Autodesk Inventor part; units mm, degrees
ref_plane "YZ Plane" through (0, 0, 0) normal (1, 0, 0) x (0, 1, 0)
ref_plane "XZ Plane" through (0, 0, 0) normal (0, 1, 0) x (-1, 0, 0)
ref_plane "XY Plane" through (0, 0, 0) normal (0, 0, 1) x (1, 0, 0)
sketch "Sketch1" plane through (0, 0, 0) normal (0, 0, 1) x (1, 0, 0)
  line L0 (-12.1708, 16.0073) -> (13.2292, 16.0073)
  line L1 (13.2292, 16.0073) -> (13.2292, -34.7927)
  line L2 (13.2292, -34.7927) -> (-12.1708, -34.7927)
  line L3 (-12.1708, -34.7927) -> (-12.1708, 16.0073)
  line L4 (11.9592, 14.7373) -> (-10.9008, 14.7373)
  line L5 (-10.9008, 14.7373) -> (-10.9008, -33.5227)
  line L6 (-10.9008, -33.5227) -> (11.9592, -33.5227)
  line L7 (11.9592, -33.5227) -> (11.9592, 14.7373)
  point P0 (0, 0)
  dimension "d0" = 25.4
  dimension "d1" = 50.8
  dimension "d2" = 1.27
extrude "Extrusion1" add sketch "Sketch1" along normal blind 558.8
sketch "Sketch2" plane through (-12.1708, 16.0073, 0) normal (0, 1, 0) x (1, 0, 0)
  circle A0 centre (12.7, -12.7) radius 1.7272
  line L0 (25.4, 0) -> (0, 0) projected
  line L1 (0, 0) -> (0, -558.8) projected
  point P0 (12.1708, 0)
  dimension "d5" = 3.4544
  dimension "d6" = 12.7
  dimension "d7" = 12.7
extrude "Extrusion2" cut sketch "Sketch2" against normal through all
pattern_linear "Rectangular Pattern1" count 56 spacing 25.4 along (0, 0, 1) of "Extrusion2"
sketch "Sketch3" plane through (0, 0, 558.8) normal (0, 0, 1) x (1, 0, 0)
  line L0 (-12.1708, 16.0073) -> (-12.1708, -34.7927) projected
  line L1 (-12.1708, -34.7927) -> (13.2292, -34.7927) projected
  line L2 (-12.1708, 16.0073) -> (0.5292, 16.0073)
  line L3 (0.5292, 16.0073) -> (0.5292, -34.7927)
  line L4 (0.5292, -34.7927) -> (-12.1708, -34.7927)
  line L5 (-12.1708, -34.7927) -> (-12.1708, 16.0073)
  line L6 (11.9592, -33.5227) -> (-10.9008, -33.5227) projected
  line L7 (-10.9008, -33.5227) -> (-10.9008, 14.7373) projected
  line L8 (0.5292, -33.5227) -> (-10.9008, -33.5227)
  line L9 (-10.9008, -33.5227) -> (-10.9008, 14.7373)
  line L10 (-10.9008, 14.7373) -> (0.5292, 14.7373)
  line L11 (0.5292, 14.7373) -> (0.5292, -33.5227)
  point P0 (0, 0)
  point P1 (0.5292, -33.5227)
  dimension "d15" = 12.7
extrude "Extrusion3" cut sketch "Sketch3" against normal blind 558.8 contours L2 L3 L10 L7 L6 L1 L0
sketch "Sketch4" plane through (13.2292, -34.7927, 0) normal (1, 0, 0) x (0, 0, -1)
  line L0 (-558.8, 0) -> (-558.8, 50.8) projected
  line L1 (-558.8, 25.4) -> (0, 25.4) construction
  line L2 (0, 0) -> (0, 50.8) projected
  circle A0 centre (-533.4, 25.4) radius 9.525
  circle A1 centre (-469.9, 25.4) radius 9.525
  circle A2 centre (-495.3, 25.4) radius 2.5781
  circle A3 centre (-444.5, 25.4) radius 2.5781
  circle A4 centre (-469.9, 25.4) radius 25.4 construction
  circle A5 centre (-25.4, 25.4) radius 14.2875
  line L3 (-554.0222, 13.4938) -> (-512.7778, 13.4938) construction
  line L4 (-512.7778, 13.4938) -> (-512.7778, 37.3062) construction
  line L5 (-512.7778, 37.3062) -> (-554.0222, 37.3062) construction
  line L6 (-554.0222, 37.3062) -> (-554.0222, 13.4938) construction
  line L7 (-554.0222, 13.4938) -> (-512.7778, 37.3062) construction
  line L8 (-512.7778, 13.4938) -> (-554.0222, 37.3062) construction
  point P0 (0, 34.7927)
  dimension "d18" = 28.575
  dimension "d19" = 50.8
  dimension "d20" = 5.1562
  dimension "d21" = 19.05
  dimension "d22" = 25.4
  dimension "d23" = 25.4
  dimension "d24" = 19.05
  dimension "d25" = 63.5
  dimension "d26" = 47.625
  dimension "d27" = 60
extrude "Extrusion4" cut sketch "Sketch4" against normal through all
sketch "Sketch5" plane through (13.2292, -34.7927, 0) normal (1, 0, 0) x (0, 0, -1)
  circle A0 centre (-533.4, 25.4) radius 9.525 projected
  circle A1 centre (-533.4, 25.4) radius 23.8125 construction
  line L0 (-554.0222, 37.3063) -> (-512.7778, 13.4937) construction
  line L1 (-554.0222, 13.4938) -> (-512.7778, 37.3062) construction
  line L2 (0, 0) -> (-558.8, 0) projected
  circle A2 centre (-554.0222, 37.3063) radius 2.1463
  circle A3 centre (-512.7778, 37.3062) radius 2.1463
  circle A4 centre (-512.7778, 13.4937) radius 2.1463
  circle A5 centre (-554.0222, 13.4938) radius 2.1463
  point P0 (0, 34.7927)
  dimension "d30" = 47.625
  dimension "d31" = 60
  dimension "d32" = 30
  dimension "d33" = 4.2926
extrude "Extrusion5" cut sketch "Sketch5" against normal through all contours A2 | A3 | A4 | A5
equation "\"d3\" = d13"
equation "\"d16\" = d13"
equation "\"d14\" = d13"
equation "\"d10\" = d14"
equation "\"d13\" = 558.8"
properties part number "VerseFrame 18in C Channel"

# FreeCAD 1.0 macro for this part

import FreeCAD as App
import Part
import Sketcher

V = App.Vector
Q = App.Units.Quantity

doc = App.newDocument("Part")
body = doc.addObject("PartDesign::Body", "Body")

# Sketch on XY plane
sketch1 = body.newObject("Sketcher::SketchObject", "Sketch")
sketch1.AttachmentSupport = (doc.getObject("XY_Plane"), [""])
sketch1.MapMode = "FlatFace"
sketch1.addGeometry([
    Part.LineSegment(V(13, 16, 0), V(-12, 16, 0)),  # 0
    Part.LineSegment(V(-12, 16, 0), V(-12, -35, 0)),  # 1
    Part.LineSegment(V(-12, -35, 0), V(13, -35, 0)),  # 2
    Part.LineSegment(V(13, -35, 0), V(13, 16, 0)),  # 3
    Part.LineSegment(V(-11, 15, 0), V(12, 15, 0)),  # 4
    Part.LineSegment(V(12, 15, 0), V(12, -34, 0)),  # 5
    Part.LineSegment(V(12, -34, 0), V(-11, -34, 0)),  # 6
    Part.LineSegment(V(-11, -34, 0), V(-11, 15, 0)),  # 7
], False)
sketch1.addConstraint([
    Sketcher.Constraint("Coincident", 0, 2, 1, 1),
    Sketcher.Constraint("Coincident", 1, 2, 2, 1),
    Sketcher.Constraint("Coincident", 2, 2, 3, 1),
    Sketcher.Constraint("Coincident", 3, 2, 0, 1),
    Sketcher.Constraint("Coincident", 4, 2, 5, 1),
    Sketcher.Constraint("Coincident", 5, 2, 6, 1),
    Sketcher.Constraint("Coincident", 6, 2, 7, 1),
    Sketcher.Constraint("Coincident", 7, 2, 4, 1),
    Sketcher.Constraint("Horizontal", 0),
    Sketcher.Constraint("Vertical", 1),
    Sketcher.Constraint("Horizontal", 2),
    Sketcher.Constraint("Vertical", 3),
    Sketcher.Constraint("Horizontal", 4),
    Sketcher.Constraint("Vertical", 5),
    Sketcher.Constraint("Horizontal", 6),
    Sketcher.Constraint("Vertical", 7),
    Sketcher.Constraint("DistanceX", 0, 2, 0, 1, Q("1 in")),
    Sketcher.Constraint("DistanceY", 1, 2, 1, 1, Q("2 in")),
    Sketcher.Constraint("DistanceX", 4, 2, 3, 2, Q("0.05 in")),
    Sketcher.Constraint("DistanceY", 4, 2, 3, 2, Q("0.05 in")),
    Sketcher.Constraint("DistanceY", 2, 2, 5, 2, Q("0.05 in")),
    Sketcher.Constraint("DistanceX", 1, 2, 6, 2, Q("0.05 in")),
    Sketcher.Constraint("DistanceY", -1, 1, 0, 2, Q("0.6302 in")),
    Sketcher.Constraint("DistanceX", 0, 2, -1, 1, 12.1708),
])
pad1 = body.newObject("PartDesign::Pad", "Pad")
pad1.Profile = sketch1
pad1.Length = Q("22 in")

# Sketch on XZ plane
sketch2 = body.newObject("Sketcher::SketchObject", "Sketch001")
sketch2.AttachmentSupport = (doc.getObject("XZ_Plane"), [""])
sketch2.MapMode = "FlatFace"
sketch2.AttachmentOffset = App.Placement(V(0, 0, -0.6302087 * 25.4), App.Rotation())
sketch2.addGeometry(Part.Circle(V(0.5, 12.7, 0), V(0, 0, 1), 1.7), False)
sketch2.addConstraint([
    Sketcher.Constraint("Diameter", 0, Q("0.136 in")),
    Sketcher.Constraint("DistanceY", -1, 1, 0, 3, Q("0.5 in")),
    Sketcher.Constraint("DistanceX", -1, 1, 0, 3, 0.5292),
])
pocket1 = body.newObject("PartDesign::Pocket", "Pocket")
pocket1.Profile = sketch2
pocket1.Type = "ThroughAll"
pocket1.Reversed = True
doc.recompute()

linearpattern = body.newObject("PartDesign::LinearPattern", "LinearPattern")
linearpattern.Originals = [pocket1]
linearpattern.Direction = (doc.getObject("Z_Axis"), [""])
linearpattern.Mode = "offset"
linearpattern.Offset = Q("1 in")
linearpattern.Occurrences = 56
body.Tip = linearpattern

# Sketch on XY plane
sketch3 = body.newObject("Sketcher::SketchObject", "Sketch002")
sketch3.AttachmentSupport = (doc.getObject("XY_Plane"), [""])
sketch3.MapMode = "FlatFace"
sketch3.AttachmentOffset = App.Placement(V(0, 0, 22 * 25.4), App.Rotation())
sketch3.addGeometry([
    Part.LineSegment(V(0.5, 16, 0), V(-12.2, 16, 0)),  # 0
    Part.LineSegment(V(-12.2, 16, 0), V(-12.2, -34.8, 0)),  # 1
    Part.LineSegment(V(-12.2, -34.8, 0), V(0.5, -34.8, 0)),  # 2
    Part.LineSegment(V(0.5, -34.8, 0), V(0.5, -33.5, 0)),  # 3
    Part.LineSegment(V(0.5, -33.5, 0), V(-10.9, -33.5, 0)),  # 4
    Part.LineSegment(V(-10.9, -33.5, 0), V(-10.9, 14.7, 0)),  # 5
    Part.LineSegment(V(-10.9, 14.7, 0), V(0.5, 14.7, 0)),  # 6
    Part.LineSegment(V(0.5, 14.7, 0), V(0.5, 16, 0)),  # 7
], False)
sketch3.addConstraint([
    Sketcher.Constraint("Coincident", 0, 2, 1, 1),
    Sketcher.Constraint("Coincident", 1, 2, 2, 1),
    Sketcher.Constraint("Coincident", 2, 2, 3, 1),
    Sketcher.Constraint("Coincident", 3, 2, 4, 1),
    Sketcher.Constraint("Coincident", 4, 2, 5, 1),
    Sketcher.Constraint("Coincident", 5, 2, 6, 1),
    Sketcher.Constraint("Coincident", 6, 2, 7, 1),
    Sketcher.Constraint("Coincident", 7, 2, 0, 1),
    Sketcher.Constraint("Horizontal", 0),
    Sketcher.Constraint("Vertical", 1),
    Sketcher.Constraint("Horizontal", 2),
    Sketcher.Constraint("Vertical", 3),
    Sketcher.Constraint("Horizontal", 4),
    Sketcher.Constraint("Vertical", 5),
    Sketcher.Constraint("Horizontal", 6),
    Sketcher.Constraint("Vertical", 7),
    Sketcher.Constraint("Vertical", 3, 2, 6, 2),
    Sketcher.Constraint("Equal", 3, 7),
    Sketcher.Constraint("DistanceX", 0, 2, 0, 1, Q("0.5 in")),
    Sketcher.Constraint("DistanceY", 1, 2, 1, 1, Q("2 in")),
    Sketcher.Constraint("DistanceY", 5, 1, 5, 2, Q("1.9 in")),
    Sketcher.Constraint("DistanceX", 4, 2, 4, 1, Q("0.45 in")),
    Sketcher.Constraint("DistanceY", -1, 1, 0, 2, Q("0.6302 in")),
    Sketcher.Constraint("DistanceX", 0, 2, -1, 1, 12.1708),
])
pocket2 = body.newObject("PartDesign::Pocket", "Pocket001")
pocket2.Profile = sketch3
pocket2.Length = Q("22 in")

# Sketch on YZ plane
sketch4 = body.newObject("Sketcher::SketchObject", "Sketch003")
sketch4.AttachmentSupport = (doc.getObject("YZ_Plane"), [""])
sketch4.MapMode = "FlatFace"
sketch4.AttachmentOffset = App.Placement(V(0, 0, 13.2292), App.Rotation())
sketch4.addGeometry([
    Part.Circle(V(-9.4, 533.4, 0), V(0, 0, 1), 9.5),  # 0
    Part.Circle(V(-9.4, 469.9, 0), V(0, 0, 1), 9.5),  # 1
    Part.Circle(V(-9.4, 495.3, 0), V(0, 0, 1), 2.6),  # 2
    Part.Circle(V(-9.4, 444.5, 0), V(0, 0, 1), 2.6),  # 3
    Part.Circle(V(-9.4, 25.4, 0), V(0, 0, 1), 14.3),  # 4
], False)
sketch4.addConstraint([
    Sketcher.Constraint("Equal", 0, 1),
    Sketcher.Constraint("Equal", 2, 3),
    Sketcher.Constraint("Vertical", 0, 3, 1, 3),
    Sketcher.Constraint("Vertical", 1, 3, 2, 3),
    Sketcher.Constraint("Vertical", 2, 3, 3, 3),
    Sketcher.Constraint("Vertical", 3, 3, 4, 3),
    Sketcher.Constraint("Diameter", 0, Q("0.75 in")),
    Sketcher.Constraint("Diameter", 2, Q("0.203 in")),
    Sketcher.Constraint("Diameter", 4, Q("1.125 in")),
    Sketcher.Constraint("DistanceY", -1, 1, 4, 3, Q("1 in")),
    Sketcher.Constraint("DistanceY", 1, 3, 2, 3, Q("1 in")),
    Sketcher.Constraint("DistanceY", 3, 3, 1, 3, Q("1 in")),
    Sketcher.Constraint("DistanceY", 1, 3, 0, 3, Q("2.5 in")),
    Sketcher.Constraint("DistanceY", -1, 1, 0, 3, Q("21 in")),
    Sketcher.Constraint("DistanceX", 0, 3, -1, 1, Q("0.3698 in")),
])
pocket3 = body.newObject("PartDesign::Pocket", "Pocket002")
pocket3.Profile = sketch4
pocket3.Type = "ThroughAll"

# Sketch on YZ plane
sketch5 = body.newObject("Sketcher::SketchObject", "Sketch004")
sketch5.AttachmentSupport = (doc.getObject("YZ_Plane"), [""])
sketch5.MapMode = "FlatFace"
sketch5.AttachmentOffset = App.Placement(V(0, 0, 13.2292), App.Rotation())
sketch5.addGeometry([
    Part.Circle(V(2.5, 554, 0), V(0, 0, 1), 2.1),
    Part.Circle(V(2.5, 512.8, 0), V(0, 0, 1), 2.1),
    Part.Circle(V(-21.3, 512.8, 0), V(0, 0, 1), 2.1),
    Part.Circle(V(-21.3, 554, 0), V(0, 0, 1), 2.1),
], False)
sketch5.addConstraint([
    Sketcher.Constraint("Equal", 0, 1),
    Sketcher.Constraint("Equal", 1, 2),
    Sketcher.Constraint("Equal", 2, 3),
    Sketcher.Constraint("Horizontal", 1, 3, 2, 3),
    Sketcher.Constraint("Horizontal", 0, 3, 3, 3),
    Sketcher.Constraint("Vertical", 0, 3, 1, 3),
    Sketcher.Constraint("Vertical", 2, 3, 3, 3),
    Sketcher.Constraint("Diameter", 0, Q("0.169 in")),
    Sketcher.Constraint("DistanceX", 2, 3, 1, 3, Q("0.9375 in")),
    Sketcher.Constraint("DistanceY", -1, 1, 0, 3, Q("21.8119 in")),
    Sketcher.Constraint("DistanceY", -1, 1, 1, 3, Q("20.1881 in")),
    Sketcher.Constraint("DistanceX", -1, 1, 0, 3, 2.5136),
])
pocket4 = body.newObject("PartDesign::Pocket", "Pocket003")
pocket4.Profile = sketch5
pocket4.Type = "ThroughAll"

doc.recompute()
